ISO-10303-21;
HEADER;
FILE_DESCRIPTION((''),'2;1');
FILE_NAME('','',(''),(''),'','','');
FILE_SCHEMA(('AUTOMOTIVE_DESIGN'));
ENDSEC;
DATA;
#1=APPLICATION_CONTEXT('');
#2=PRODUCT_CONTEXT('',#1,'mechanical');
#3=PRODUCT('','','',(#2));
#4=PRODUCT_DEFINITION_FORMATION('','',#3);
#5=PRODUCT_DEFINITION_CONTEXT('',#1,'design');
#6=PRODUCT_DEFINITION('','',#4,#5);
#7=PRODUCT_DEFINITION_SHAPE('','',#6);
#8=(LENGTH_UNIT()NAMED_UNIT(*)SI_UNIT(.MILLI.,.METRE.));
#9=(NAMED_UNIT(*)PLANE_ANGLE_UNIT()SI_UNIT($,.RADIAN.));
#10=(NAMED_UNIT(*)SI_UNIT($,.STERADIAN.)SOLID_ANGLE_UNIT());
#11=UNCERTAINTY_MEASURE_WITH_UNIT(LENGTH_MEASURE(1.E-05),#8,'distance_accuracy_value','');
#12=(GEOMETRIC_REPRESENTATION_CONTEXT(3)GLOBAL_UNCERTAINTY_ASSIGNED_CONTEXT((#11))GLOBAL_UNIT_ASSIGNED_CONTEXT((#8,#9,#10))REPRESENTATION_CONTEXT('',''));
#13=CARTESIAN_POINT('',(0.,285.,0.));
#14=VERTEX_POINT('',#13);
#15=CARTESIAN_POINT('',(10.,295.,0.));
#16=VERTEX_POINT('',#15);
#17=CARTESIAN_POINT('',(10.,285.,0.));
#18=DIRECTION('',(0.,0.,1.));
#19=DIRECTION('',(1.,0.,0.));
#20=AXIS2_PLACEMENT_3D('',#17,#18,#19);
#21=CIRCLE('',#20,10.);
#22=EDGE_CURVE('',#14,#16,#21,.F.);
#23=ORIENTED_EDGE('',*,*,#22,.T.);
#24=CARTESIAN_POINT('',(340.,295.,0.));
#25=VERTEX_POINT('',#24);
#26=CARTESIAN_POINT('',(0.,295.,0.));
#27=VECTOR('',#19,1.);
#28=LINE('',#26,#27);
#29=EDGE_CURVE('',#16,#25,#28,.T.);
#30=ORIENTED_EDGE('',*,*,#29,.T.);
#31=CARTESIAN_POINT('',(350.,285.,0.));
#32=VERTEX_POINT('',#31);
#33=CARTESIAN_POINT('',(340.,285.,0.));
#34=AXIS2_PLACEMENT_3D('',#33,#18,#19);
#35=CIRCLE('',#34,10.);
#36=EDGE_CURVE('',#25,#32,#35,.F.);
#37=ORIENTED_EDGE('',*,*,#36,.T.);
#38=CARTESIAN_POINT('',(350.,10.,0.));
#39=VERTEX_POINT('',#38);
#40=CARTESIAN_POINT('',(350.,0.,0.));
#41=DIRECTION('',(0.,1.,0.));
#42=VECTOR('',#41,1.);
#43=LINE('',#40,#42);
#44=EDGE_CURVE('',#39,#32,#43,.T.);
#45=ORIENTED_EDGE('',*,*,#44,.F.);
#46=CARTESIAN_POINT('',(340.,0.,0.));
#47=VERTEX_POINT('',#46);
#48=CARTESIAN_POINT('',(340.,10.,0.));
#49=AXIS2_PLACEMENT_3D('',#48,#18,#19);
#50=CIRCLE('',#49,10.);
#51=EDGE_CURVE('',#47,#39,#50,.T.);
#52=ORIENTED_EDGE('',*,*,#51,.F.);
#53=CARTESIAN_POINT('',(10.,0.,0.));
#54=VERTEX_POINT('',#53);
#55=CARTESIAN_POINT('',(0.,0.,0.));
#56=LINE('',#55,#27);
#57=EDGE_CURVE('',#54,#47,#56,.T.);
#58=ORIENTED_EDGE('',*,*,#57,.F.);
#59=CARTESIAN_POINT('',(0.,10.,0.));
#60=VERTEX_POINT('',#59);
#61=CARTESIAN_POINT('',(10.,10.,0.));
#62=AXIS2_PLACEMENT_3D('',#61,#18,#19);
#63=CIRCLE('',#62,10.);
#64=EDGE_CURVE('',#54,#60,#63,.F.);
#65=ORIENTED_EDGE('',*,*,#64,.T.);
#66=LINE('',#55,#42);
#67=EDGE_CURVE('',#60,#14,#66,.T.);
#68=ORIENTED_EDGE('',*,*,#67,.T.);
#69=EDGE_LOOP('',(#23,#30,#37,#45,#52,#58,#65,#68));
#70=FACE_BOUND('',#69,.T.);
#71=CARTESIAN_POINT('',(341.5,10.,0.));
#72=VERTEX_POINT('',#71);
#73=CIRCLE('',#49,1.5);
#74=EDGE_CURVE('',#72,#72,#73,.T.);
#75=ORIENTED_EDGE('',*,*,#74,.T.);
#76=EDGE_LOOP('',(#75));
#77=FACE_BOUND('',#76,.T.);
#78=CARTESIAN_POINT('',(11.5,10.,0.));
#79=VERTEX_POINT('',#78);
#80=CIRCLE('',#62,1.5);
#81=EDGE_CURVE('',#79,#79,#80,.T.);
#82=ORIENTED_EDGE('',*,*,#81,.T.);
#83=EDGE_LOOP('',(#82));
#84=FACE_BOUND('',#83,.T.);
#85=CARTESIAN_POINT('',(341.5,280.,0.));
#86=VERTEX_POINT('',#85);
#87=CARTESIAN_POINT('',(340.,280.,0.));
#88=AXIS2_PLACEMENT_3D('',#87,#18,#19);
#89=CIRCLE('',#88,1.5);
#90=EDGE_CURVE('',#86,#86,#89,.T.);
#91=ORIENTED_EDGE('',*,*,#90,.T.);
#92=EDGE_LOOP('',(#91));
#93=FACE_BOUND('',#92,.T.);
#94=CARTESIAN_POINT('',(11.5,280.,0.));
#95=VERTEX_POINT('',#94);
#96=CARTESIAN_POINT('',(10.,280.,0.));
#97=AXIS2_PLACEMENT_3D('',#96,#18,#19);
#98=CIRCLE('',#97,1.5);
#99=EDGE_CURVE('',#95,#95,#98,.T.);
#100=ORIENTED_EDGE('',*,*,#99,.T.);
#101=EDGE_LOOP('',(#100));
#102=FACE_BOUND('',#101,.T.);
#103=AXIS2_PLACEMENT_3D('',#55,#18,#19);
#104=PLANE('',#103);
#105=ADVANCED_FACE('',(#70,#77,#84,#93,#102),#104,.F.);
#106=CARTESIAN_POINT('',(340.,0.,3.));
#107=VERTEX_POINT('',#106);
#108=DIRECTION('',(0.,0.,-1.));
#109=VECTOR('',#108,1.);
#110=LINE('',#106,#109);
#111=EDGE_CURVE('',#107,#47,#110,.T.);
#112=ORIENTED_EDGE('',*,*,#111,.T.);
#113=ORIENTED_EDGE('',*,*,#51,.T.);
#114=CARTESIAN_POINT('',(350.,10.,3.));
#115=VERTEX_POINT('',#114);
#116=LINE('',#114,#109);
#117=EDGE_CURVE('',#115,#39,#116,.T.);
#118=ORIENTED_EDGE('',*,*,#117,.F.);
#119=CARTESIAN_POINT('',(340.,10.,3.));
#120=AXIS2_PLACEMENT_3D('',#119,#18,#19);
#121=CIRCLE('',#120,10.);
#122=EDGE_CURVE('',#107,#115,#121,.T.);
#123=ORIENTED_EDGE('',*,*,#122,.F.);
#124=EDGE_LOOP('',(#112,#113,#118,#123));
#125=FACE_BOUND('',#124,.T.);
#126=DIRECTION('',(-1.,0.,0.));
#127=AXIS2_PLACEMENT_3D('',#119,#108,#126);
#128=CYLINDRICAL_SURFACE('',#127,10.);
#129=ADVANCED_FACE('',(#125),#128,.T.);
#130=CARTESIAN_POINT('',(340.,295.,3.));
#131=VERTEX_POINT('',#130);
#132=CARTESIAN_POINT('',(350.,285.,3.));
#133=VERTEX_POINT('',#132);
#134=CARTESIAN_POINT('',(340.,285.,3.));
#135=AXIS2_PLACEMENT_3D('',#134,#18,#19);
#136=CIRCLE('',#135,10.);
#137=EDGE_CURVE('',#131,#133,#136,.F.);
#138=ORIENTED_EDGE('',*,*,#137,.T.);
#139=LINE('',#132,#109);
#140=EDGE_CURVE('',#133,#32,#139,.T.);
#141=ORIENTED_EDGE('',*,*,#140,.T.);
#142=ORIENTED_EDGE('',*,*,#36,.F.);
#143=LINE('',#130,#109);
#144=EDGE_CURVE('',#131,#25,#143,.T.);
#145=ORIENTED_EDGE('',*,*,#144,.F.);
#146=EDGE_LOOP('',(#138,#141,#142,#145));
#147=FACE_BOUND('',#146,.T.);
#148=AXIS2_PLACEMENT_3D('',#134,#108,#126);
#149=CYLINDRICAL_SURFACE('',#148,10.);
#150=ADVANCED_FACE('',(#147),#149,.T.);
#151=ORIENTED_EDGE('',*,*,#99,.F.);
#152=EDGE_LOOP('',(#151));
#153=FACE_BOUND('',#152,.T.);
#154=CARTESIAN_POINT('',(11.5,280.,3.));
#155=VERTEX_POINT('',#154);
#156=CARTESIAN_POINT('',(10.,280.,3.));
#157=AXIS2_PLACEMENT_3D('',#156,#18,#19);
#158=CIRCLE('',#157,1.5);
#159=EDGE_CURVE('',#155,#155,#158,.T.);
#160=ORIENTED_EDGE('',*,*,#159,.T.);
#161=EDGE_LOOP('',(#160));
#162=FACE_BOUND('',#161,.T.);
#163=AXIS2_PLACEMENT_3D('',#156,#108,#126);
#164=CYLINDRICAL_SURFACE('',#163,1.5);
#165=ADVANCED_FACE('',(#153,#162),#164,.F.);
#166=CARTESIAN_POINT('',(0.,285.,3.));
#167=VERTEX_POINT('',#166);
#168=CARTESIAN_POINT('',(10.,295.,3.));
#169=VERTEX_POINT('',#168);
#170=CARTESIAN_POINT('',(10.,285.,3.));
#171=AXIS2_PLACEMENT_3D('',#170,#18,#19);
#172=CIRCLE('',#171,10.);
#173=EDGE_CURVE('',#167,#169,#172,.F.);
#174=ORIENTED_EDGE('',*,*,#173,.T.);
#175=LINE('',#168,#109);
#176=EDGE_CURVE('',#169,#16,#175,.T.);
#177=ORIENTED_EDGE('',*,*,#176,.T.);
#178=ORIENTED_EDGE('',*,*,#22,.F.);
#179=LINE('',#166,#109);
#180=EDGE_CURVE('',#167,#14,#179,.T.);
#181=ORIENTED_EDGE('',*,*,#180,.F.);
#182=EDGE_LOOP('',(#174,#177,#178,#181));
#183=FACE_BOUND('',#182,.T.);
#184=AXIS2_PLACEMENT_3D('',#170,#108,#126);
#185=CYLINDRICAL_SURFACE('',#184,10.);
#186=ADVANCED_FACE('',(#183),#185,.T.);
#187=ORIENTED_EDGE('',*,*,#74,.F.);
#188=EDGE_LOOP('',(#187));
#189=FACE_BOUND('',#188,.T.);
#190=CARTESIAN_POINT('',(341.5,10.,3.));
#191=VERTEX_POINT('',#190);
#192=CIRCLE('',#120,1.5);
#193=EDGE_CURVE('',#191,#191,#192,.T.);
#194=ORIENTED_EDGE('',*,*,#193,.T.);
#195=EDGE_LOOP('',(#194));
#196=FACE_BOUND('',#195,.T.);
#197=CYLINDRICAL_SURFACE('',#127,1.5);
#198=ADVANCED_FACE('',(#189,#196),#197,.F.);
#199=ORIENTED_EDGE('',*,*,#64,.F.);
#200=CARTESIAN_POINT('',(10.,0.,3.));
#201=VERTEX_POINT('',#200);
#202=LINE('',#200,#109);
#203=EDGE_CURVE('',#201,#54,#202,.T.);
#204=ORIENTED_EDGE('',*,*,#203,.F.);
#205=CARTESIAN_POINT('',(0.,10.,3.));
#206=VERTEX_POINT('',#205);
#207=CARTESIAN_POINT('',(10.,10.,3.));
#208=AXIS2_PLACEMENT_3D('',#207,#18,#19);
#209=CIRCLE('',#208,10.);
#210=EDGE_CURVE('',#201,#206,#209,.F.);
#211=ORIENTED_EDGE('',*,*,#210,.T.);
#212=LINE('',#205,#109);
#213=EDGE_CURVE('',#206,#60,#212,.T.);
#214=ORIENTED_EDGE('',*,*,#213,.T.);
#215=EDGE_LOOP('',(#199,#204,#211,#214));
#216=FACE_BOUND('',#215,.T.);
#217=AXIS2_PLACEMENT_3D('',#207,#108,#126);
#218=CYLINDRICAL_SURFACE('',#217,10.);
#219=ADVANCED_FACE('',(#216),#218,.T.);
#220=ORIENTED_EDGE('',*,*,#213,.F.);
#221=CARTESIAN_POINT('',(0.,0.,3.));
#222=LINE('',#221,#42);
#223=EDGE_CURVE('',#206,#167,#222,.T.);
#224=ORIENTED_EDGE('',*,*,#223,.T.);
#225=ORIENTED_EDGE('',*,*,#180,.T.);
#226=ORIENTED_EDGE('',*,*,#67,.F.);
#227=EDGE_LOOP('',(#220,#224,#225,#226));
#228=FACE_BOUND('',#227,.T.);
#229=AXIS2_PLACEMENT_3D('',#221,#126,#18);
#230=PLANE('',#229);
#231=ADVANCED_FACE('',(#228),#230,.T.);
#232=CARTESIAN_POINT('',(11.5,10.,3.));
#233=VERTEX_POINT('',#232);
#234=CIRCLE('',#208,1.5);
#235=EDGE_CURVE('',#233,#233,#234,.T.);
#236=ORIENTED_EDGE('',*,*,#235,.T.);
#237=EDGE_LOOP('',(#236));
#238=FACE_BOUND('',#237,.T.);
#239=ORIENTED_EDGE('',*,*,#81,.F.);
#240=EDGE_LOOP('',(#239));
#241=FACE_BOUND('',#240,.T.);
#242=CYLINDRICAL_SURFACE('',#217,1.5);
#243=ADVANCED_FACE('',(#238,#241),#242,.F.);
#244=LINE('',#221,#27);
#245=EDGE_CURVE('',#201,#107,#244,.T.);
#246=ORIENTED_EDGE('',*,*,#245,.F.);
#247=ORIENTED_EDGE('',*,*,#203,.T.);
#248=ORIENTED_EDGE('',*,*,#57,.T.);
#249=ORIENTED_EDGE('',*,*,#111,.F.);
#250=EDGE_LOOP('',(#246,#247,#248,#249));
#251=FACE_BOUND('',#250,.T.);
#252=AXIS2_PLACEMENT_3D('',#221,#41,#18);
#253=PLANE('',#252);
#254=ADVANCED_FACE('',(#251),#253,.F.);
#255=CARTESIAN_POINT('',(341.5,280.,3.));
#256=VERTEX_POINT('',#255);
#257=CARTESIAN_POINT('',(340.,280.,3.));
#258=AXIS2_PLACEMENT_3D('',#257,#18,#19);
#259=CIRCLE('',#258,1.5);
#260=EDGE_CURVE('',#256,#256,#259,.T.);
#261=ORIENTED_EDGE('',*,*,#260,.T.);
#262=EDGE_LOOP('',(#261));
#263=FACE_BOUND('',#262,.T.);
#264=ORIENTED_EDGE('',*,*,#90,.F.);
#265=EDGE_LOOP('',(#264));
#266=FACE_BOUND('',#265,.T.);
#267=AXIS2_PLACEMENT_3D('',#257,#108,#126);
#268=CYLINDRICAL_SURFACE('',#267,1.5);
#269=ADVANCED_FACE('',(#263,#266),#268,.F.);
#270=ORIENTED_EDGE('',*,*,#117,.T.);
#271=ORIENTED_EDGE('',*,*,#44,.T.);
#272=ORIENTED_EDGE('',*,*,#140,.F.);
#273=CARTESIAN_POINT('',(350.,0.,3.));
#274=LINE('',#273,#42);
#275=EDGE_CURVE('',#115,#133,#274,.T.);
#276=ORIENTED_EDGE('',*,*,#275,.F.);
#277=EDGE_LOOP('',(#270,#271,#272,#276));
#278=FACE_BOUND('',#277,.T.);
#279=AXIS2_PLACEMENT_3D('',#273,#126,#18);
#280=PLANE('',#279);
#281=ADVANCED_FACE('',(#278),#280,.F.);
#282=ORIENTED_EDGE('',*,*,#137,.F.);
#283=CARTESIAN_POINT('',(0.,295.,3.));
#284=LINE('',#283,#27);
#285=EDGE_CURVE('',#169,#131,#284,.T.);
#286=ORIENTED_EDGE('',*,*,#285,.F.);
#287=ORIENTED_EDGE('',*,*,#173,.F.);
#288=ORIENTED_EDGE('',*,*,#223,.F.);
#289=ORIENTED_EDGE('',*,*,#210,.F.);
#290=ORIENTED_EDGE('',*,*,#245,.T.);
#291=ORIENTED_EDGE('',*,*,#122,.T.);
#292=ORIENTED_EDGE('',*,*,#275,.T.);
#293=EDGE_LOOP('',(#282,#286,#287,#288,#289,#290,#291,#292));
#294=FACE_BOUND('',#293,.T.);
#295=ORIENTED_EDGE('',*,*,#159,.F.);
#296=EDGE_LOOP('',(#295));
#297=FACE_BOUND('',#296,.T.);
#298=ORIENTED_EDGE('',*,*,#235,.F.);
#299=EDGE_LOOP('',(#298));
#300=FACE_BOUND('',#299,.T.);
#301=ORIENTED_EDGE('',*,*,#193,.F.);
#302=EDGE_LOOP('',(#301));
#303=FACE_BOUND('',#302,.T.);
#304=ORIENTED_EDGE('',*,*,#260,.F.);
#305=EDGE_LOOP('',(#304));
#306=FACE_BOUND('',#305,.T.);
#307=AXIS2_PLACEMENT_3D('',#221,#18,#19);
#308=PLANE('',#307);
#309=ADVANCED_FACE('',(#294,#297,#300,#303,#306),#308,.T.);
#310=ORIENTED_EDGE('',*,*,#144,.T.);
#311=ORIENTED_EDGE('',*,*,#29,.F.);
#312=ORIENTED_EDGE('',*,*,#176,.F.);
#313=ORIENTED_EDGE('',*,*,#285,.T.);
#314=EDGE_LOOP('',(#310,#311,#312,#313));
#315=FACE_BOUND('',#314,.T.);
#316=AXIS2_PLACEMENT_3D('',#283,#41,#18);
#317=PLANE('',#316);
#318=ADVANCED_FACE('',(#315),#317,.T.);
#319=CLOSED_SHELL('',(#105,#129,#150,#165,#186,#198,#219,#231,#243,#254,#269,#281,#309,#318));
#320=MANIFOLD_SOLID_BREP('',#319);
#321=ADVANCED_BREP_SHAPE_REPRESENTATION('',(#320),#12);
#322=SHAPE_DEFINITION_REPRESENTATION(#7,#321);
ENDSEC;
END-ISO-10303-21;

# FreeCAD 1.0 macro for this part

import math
import FreeCAD as App
import Part
import Sketcher

V = App.Vector
Q = App.Units.Quantity

doc = App.newDocument("Part")
body = doc.addObject("PartDesign::Body", "Body")

sketch1 = body.newObject("Sketcher::SketchObject", "Sketch")
sketch1.AttachmentSupport = (doc.getObject("XY_Plane"), [""])
sketch1.MapMode = "FlatFace"
sketch1.addGeometry(Part.LineSegment(V(10, 0, 0), V(340, 0, 0)), False)
sketch1.addGeometry(Part.ArcOfCircle(Part.Circle(V(340, 10, 0), V(0, 0, 1), 10), math.radians(-90), math.radians(0)), False)
sketch1.addGeometry(Part.LineSegment(V(350, 10, 0), V(350, 285, 0)), False)
sketch1.addGeometry(Part.ArcOfCircle(Part.Circle(V(340, 285, 0), V(0, 0, 1), 10), math.radians(0), math.radians(90)), False)
sketch1.addGeometry(Part.LineSegment(V(340, 295, 0), V(10, 295, 0)), False)
sketch1.addGeometry(Part.ArcOfCircle(Part.Circle(V(10, 285, 0), V(0, 0, 1), 10), math.radians(90), math.radians(180)), False)
sketch1.addGeometry(Part.LineSegment(V(0, 285, 0), V(0, 10, 0)), False)
sketch1.addGeometry(Part.ArcOfCircle(Part.Circle(V(10, 10, 0), V(0, 0, 1), 10), math.radians(180), math.radians(270)), False)
sketch1.addGeometry(Part.Circle(V(10, 10, 0), V(0, 0, 1), 1.5), False)
sketch1.addGeometry(Part.Circle(V(340, 10, 0), V(0, 0, 1), 1.5), False)
sketch1.addGeometry(Part.Circle(V(10, 280, 0), V(0, 0, 1), 1.5), False)
sketch1.addGeometry(Part.Circle(V(340, 280, 0), V(0, 0, 1), 1.5), False)
sketch1.addConstraint(Sketcher.Constraint("Tangent", 0, 2, 1, 1))
sketch1.addConstraint(Sketcher.Constraint("Tangent", 1, 2, 2, 1))
sketch1.addConstraint(Sketcher.Constraint("Tangent", 2, 2, 3, 1))
sketch1.addConstraint(Sketcher.Constraint("Tangent", 3, 2, 4, 1))
sketch1.addConstraint(Sketcher.Constraint("Tangent", 4, 2, 5, 1))
sketch1.addConstraint(Sketcher.Constraint("Tangent", 5, 2, 6, 1))
sketch1.addConstraint(Sketcher.Constraint("Tangent", 6, 2, 7, 1))
sketch1.addConstraint(Sketcher.Constraint("Tangent", 7, 2, 0, 1))
sketch1.addConstraint(Sketcher.Constraint("Horizontal", 0))
sketch1.addConstraint(Sketcher.Constraint("Vertical", 2))
sketch1.addConstraint(Sketcher.Constraint("Horizontal", 4))
sketch1.addConstraint(Sketcher.Constraint("Vertical", 6))
sketch1.addConstraint(Sketcher.Constraint("Coincident", 8, 3, 7, 3))
sketch1.addConstraint(Sketcher.Constraint("Coincident", 9, 3, 1, 3))
sketch1.addConstraint(Sketcher.Constraint("Equal", 1, 3))
sketch1.addConstraint(Sketcher.Constraint("Equal", 3, 5))
sketch1.addConstraint(Sketcher.Constraint("Equal", 5, 7))
sketch1.addConstraint(Sketcher.Constraint("Equal", 8, 9))
sketch1.addConstraint(Sketcher.Constraint("Equal", 9, 10))
sketch1.addConstraint(Sketcher.Constraint("Equal", 10, 11))
sketch1.addConstraint(Sketcher.Constraint("PointOnObject", 0, 2, -1))
sketch1.addConstraint(Sketcher.Constraint("PointOnObject", 5, 2, -2))
sketch1.addConstraint(Sketcher.Constraint("Horizontal", 10, 3, 11, 3))
sketch1.addConstraint(Sketcher.Constraint("Vertical", 8, 3, 10, 3))
sketch1.addConstraint(Sketcher.Constraint("Vertical", 9, 3, 11, 3))
sketch1.addConstraint(Sketcher.Constraint("Diameter", 8, Q("3 mm")))
sketch1.addConstraint(Sketcher.Constraint("Radius", 1, Q("10 mm")))
sketch1.addConstraint(Sketcher.Constraint("DistanceX", 0, 1, 0, 2, Q("330 mm")))
sketch1.addConstraint(Sketcher.Constraint("DistanceY", 2, 1, 2, 2, Q("275 mm")))
sketch1.addConstraint(Sketcher.Constraint("DistanceY", -1, 1, 10, 3, Q("280 mm")))
pad1 = body.newObject("PartDesign::Pad", "Pad")
pad1.Profile = sketch1
pad1.Length = 3

doc.recompute()
